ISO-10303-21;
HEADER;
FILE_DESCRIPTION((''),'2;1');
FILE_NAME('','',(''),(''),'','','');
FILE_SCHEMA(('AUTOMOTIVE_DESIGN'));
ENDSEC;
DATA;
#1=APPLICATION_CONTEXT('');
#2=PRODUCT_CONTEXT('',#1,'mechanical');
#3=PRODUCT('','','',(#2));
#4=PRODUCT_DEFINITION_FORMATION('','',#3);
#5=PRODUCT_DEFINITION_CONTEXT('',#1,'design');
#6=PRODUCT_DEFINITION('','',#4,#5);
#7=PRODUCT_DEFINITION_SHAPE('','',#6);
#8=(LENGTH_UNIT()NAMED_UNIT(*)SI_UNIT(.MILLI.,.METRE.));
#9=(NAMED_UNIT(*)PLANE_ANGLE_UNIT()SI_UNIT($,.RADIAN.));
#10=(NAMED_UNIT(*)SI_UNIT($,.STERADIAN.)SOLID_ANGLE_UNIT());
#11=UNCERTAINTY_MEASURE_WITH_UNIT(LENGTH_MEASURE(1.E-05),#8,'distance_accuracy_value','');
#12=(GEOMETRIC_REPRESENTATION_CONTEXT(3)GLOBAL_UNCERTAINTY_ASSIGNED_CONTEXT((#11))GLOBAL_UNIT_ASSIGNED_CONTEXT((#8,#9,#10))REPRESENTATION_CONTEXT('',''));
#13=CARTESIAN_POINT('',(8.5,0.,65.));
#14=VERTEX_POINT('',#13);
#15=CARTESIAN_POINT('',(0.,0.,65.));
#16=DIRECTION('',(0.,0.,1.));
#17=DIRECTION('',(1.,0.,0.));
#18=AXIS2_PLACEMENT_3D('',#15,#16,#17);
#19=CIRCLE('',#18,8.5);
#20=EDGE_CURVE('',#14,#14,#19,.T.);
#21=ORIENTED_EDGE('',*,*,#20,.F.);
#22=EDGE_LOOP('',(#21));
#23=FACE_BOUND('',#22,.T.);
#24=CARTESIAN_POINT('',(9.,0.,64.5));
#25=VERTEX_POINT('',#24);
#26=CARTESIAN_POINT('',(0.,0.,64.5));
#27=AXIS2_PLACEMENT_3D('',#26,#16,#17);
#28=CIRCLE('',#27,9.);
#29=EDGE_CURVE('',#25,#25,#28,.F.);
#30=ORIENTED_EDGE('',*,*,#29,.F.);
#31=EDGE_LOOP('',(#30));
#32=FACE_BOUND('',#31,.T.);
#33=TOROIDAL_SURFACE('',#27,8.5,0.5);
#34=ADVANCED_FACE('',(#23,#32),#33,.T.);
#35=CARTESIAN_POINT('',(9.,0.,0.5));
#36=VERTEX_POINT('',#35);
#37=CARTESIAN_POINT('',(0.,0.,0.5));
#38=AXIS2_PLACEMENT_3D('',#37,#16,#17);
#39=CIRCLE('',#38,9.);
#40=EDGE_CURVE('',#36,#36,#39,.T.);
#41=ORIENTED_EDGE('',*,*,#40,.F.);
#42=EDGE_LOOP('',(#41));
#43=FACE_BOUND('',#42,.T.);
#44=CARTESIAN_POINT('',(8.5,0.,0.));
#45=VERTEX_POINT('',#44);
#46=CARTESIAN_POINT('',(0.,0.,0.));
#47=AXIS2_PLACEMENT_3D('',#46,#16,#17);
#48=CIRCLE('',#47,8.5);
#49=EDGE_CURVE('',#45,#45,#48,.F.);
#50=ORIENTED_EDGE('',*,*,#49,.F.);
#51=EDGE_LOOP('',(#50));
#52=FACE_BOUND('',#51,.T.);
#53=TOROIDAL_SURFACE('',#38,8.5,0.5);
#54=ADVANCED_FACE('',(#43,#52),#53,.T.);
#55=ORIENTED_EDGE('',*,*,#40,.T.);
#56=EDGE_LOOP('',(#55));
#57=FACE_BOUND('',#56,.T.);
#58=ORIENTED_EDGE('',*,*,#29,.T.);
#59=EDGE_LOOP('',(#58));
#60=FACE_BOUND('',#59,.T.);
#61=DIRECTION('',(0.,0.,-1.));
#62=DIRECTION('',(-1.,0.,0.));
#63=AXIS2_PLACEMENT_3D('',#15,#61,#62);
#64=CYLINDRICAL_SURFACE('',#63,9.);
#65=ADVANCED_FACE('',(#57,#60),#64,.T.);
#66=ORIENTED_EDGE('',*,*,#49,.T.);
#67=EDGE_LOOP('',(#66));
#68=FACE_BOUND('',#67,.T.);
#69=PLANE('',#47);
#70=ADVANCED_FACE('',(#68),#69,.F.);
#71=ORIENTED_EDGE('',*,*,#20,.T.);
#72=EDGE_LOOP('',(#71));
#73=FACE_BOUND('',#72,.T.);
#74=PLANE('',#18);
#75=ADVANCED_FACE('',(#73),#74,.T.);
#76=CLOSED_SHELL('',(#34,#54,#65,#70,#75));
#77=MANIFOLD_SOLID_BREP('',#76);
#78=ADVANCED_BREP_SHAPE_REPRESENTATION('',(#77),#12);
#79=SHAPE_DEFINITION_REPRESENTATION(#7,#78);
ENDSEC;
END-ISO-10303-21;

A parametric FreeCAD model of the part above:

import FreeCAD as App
import Part
import Sketcher
Q = App.Units.Quantity


def edges_at(feature, points):
    """Names of the edges that pass closest to the given points."""
    edges = feature.Shape.Edges
    near = lambda p: min(range(len(edges)), key=lambda i: edges[i].distToShape(Part.Vertex(*p))[0])
    return sorted({f"Edge{near(p) + 1}" for p in points})

doc = App.newDocument("Part")
body = doc.addObject("PartDesign::Body", "Body")

# Sketch on XY plane
sketch1 = body.newObject("Sketcher::SketchObject", "Sketch")
sketch1.AttachmentSupport = (doc.getObject("XY_Plane"), [""])
sketch1.MapMode = "FlatFace"
sketch1.addGeometry(Part.Circle(App.Vector(0, 0, 0), App.Vector(0, 0, 1), 9), False)
sketch1.addConstraint([
    Sketcher.Constraint("Coincident", 0, 3, -1, 1),
    Sketcher.Constraint("Diameter", 0, Q("18 mm")),
])
pad1 = body.newObject("PartDesign::Pad", "Pad")
pad1.Profile = sketch1
pad1.Length = 65
doc.recompute()

fillet = body.newObject("PartDesign::Fillet", "Fillet")
fillet.Base = (pad1, edges_at(pad1, [(-9, 0, 0), (-9, 0, 65)]))
fillet.Radius = 0.5

doc.recompute()
